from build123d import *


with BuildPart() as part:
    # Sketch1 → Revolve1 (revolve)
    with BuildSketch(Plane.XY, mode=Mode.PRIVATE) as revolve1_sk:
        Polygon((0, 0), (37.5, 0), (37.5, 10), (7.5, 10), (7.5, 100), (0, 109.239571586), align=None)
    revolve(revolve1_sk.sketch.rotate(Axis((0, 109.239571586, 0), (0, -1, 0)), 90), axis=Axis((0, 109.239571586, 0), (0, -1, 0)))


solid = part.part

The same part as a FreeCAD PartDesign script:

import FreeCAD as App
import Part
import Sketcher

V = App.Vector
Q = App.Units.Quantity


def add_polygon(sketch, points):
    """Adds a closed chain of lines whose ends are joined by coincident constraints."""
    first, n = sketch.GeometryCount, len(points)
    for a, b in zip(points, points[1:] + points[:1]):
        sketch.addGeometry(Part.LineSegment(App.Vector(*a, 0), App.Vector(*b, 0)), False)
    for i in range(n):
        sketch.addConstraint(Sketcher.Constraint("Coincident", first + i, 2, first + (i + 1) % n, 1))

doc = App.newDocument("Part")
body = doc.addObject("PartDesign::Body", "Body")

sketch1 = body.newObject("Sketcher::SketchObject", "Sketch")
sketch1.AttachmentSupport = (doc.getObject("XY_Plane"), [""])
sketch1.MapMode = "FlatFace"
add_polygon(sketch1, [(0, 0), (37.5, 0), (37.5, 10), (7.5, 10), (7.5, 100), (0, 109.239572)])
sketch1.addConstraint([
    Sketcher.Constraint("Horizontal", 0),
    Sketcher.Constraint("Vertical", 1),
    Sketcher.Constraint("Horizontal", 2),
    Sketcher.Constraint("Vertical", 3),
    Sketcher.Constraint("Vertical", 5),
    Sketcher.Constraint("Coincident", 5, 2, -1, 1),
    Sketcher.Constraint("DistanceX", 2, 2, 2, 1, Q("30 mm")),
    Sketcher.Constraint("DistanceY", 1, 1, 1, 2, Q("10 mm")),
    Sketcher.Constraint("DistanceY", 3, 1, 3, 2, Q("90 mm")),
    Sketcher.Constraint("DistanceX", 0, 1, 0, 2, Q("37.5 mm")),
    Sketcher.Constraint("DistanceY", 5, 2, 5, 1, Q("109.239572 mm")),
])
revolution = body.newObject("PartDesign::Revolution", "Revolution")
revolution.Profile = sketch1
revolution.ReferenceAxis = (sketch1, ["V_Axis"])
revolution.Angle = 360

doc.recompute()
